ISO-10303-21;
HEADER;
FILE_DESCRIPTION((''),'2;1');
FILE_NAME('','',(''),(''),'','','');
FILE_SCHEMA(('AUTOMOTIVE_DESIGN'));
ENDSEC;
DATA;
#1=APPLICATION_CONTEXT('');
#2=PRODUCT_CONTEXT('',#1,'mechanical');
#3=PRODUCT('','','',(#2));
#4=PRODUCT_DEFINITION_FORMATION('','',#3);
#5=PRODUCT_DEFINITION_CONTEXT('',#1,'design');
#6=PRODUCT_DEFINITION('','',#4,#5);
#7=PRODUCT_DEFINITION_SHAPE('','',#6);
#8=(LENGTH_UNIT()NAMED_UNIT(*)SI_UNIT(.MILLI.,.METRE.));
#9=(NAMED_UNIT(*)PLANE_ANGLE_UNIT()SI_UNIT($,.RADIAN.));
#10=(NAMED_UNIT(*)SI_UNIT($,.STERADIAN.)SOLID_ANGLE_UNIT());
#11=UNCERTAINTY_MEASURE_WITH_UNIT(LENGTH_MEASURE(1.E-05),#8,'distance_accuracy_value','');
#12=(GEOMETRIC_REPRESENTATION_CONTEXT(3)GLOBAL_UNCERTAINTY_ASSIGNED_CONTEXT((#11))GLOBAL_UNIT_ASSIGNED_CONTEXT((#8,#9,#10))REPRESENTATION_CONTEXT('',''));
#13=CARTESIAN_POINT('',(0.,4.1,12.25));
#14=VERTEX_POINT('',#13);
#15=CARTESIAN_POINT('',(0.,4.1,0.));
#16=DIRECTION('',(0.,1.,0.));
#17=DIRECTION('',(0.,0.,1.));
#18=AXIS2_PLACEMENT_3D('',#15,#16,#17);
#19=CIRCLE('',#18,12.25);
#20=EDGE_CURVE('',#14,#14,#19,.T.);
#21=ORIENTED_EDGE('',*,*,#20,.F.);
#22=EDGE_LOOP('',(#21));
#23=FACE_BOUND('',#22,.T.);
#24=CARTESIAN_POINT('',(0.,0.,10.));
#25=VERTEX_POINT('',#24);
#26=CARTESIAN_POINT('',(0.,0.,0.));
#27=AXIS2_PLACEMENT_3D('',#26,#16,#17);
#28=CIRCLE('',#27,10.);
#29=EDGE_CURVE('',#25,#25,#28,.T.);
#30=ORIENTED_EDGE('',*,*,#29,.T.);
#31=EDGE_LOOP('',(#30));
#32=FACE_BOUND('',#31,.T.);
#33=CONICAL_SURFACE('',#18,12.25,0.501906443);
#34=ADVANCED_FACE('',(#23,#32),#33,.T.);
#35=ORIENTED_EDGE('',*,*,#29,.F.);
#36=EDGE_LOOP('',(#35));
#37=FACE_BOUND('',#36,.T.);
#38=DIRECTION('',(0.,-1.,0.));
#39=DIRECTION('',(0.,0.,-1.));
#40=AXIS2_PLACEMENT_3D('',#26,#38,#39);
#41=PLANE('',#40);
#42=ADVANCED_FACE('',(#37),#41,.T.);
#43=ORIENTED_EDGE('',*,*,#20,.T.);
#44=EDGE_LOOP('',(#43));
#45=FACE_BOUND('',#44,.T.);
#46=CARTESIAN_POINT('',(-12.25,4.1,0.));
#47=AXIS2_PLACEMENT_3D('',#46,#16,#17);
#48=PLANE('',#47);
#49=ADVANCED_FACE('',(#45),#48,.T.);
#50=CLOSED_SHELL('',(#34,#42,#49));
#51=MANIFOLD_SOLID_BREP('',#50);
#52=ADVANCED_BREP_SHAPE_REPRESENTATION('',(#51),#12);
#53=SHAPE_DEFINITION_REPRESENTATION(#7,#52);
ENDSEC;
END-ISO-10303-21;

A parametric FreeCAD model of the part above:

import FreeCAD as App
import Part
import Sketcher

V = App.Vector
Q = App.Units.Quantity


def add_polygon(sketch, points):
    """Adds a closed chain of lines whose ends are joined by coincident constraints."""
    first, n = sketch.GeometryCount, len(points)
    for a, b in zip(points, points[1:] + points[:1]):
        sketch.addGeometry(Part.LineSegment(App.Vector(*a, 0), App.Vector(*b, 0)), False)
    for i in range(n):
        sketch.addConstraint(Sketcher.Constraint("Coincident", first + i, 2, first + (i + 1) % n, 1))

doc = App.newDocument("Part")
params = doc.addObject("Spreadsheet::Sheet", "Params")
for row, (alias, value) in enumerate([
    ("sketch1_width", "10 mm"),
    ("sketch1_height", "4.1 mm"),
    ("sketch1_width2", "12.25 mm"),
    ("revolution_angle", "360 deg"),
], start=1):
    params.set(f"A{row}", alias)
    params.set(f"B{row}", "=" + value)
    params.setAlias(f"B{row}", alias)

body = doc.addObject("PartDesign::Body", "Body")

# Sketch on XY plane
sketch1 = body.newObject("Sketcher::SketchObject", "Sketch")
sketch1.AttachmentSupport = (doc.getObject("XY_Plane"), [""])
sketch1.MapMode = "FlatFace"
add_polygon(sketch1, [(-10, 0), (0, 0), (0, 4.1), (-12.25, 4.1)])  # lines 0-3
sketch1.addConstraint([
    Sketcher.Constraint("Horizontal", 0),
    Sketcher.Constraint("Vertical", 1),
    Sketcher.Constraint("Horizontal", 2),
    Sketcher.Constraint("Coincident", 0, 2, -1, 1),
    Sketcher.Constraint("DistanceX", 0, 1, 0, 2, Q("10 mm")),
    Sketcher.Constraint("DistanceY", 1, 1, 1, 2, Q("4.1 mm")),
    Sketcher.Constraint("DistanceX", 2, 2, 2, 1, Q("12.25 mm")),
])
sketch1.setExpression("Constraints[8]", "Params.sketch1_width")
sketch1.setExpression("Constraints[9]", "Params.sketch1_height")
sketch1.setExpression("Constraints[10]", "Params.sketch1_width2")
revolution = body.newObject("PartDesign::Revolution", "Revolution")
revolution.Profile = sketch1
revolution.ReferenceAxis = (sketch1, ["V_Axis"])
revolution.setExpression("Angle", "Params.revolution_angle")

doc.recompute()
